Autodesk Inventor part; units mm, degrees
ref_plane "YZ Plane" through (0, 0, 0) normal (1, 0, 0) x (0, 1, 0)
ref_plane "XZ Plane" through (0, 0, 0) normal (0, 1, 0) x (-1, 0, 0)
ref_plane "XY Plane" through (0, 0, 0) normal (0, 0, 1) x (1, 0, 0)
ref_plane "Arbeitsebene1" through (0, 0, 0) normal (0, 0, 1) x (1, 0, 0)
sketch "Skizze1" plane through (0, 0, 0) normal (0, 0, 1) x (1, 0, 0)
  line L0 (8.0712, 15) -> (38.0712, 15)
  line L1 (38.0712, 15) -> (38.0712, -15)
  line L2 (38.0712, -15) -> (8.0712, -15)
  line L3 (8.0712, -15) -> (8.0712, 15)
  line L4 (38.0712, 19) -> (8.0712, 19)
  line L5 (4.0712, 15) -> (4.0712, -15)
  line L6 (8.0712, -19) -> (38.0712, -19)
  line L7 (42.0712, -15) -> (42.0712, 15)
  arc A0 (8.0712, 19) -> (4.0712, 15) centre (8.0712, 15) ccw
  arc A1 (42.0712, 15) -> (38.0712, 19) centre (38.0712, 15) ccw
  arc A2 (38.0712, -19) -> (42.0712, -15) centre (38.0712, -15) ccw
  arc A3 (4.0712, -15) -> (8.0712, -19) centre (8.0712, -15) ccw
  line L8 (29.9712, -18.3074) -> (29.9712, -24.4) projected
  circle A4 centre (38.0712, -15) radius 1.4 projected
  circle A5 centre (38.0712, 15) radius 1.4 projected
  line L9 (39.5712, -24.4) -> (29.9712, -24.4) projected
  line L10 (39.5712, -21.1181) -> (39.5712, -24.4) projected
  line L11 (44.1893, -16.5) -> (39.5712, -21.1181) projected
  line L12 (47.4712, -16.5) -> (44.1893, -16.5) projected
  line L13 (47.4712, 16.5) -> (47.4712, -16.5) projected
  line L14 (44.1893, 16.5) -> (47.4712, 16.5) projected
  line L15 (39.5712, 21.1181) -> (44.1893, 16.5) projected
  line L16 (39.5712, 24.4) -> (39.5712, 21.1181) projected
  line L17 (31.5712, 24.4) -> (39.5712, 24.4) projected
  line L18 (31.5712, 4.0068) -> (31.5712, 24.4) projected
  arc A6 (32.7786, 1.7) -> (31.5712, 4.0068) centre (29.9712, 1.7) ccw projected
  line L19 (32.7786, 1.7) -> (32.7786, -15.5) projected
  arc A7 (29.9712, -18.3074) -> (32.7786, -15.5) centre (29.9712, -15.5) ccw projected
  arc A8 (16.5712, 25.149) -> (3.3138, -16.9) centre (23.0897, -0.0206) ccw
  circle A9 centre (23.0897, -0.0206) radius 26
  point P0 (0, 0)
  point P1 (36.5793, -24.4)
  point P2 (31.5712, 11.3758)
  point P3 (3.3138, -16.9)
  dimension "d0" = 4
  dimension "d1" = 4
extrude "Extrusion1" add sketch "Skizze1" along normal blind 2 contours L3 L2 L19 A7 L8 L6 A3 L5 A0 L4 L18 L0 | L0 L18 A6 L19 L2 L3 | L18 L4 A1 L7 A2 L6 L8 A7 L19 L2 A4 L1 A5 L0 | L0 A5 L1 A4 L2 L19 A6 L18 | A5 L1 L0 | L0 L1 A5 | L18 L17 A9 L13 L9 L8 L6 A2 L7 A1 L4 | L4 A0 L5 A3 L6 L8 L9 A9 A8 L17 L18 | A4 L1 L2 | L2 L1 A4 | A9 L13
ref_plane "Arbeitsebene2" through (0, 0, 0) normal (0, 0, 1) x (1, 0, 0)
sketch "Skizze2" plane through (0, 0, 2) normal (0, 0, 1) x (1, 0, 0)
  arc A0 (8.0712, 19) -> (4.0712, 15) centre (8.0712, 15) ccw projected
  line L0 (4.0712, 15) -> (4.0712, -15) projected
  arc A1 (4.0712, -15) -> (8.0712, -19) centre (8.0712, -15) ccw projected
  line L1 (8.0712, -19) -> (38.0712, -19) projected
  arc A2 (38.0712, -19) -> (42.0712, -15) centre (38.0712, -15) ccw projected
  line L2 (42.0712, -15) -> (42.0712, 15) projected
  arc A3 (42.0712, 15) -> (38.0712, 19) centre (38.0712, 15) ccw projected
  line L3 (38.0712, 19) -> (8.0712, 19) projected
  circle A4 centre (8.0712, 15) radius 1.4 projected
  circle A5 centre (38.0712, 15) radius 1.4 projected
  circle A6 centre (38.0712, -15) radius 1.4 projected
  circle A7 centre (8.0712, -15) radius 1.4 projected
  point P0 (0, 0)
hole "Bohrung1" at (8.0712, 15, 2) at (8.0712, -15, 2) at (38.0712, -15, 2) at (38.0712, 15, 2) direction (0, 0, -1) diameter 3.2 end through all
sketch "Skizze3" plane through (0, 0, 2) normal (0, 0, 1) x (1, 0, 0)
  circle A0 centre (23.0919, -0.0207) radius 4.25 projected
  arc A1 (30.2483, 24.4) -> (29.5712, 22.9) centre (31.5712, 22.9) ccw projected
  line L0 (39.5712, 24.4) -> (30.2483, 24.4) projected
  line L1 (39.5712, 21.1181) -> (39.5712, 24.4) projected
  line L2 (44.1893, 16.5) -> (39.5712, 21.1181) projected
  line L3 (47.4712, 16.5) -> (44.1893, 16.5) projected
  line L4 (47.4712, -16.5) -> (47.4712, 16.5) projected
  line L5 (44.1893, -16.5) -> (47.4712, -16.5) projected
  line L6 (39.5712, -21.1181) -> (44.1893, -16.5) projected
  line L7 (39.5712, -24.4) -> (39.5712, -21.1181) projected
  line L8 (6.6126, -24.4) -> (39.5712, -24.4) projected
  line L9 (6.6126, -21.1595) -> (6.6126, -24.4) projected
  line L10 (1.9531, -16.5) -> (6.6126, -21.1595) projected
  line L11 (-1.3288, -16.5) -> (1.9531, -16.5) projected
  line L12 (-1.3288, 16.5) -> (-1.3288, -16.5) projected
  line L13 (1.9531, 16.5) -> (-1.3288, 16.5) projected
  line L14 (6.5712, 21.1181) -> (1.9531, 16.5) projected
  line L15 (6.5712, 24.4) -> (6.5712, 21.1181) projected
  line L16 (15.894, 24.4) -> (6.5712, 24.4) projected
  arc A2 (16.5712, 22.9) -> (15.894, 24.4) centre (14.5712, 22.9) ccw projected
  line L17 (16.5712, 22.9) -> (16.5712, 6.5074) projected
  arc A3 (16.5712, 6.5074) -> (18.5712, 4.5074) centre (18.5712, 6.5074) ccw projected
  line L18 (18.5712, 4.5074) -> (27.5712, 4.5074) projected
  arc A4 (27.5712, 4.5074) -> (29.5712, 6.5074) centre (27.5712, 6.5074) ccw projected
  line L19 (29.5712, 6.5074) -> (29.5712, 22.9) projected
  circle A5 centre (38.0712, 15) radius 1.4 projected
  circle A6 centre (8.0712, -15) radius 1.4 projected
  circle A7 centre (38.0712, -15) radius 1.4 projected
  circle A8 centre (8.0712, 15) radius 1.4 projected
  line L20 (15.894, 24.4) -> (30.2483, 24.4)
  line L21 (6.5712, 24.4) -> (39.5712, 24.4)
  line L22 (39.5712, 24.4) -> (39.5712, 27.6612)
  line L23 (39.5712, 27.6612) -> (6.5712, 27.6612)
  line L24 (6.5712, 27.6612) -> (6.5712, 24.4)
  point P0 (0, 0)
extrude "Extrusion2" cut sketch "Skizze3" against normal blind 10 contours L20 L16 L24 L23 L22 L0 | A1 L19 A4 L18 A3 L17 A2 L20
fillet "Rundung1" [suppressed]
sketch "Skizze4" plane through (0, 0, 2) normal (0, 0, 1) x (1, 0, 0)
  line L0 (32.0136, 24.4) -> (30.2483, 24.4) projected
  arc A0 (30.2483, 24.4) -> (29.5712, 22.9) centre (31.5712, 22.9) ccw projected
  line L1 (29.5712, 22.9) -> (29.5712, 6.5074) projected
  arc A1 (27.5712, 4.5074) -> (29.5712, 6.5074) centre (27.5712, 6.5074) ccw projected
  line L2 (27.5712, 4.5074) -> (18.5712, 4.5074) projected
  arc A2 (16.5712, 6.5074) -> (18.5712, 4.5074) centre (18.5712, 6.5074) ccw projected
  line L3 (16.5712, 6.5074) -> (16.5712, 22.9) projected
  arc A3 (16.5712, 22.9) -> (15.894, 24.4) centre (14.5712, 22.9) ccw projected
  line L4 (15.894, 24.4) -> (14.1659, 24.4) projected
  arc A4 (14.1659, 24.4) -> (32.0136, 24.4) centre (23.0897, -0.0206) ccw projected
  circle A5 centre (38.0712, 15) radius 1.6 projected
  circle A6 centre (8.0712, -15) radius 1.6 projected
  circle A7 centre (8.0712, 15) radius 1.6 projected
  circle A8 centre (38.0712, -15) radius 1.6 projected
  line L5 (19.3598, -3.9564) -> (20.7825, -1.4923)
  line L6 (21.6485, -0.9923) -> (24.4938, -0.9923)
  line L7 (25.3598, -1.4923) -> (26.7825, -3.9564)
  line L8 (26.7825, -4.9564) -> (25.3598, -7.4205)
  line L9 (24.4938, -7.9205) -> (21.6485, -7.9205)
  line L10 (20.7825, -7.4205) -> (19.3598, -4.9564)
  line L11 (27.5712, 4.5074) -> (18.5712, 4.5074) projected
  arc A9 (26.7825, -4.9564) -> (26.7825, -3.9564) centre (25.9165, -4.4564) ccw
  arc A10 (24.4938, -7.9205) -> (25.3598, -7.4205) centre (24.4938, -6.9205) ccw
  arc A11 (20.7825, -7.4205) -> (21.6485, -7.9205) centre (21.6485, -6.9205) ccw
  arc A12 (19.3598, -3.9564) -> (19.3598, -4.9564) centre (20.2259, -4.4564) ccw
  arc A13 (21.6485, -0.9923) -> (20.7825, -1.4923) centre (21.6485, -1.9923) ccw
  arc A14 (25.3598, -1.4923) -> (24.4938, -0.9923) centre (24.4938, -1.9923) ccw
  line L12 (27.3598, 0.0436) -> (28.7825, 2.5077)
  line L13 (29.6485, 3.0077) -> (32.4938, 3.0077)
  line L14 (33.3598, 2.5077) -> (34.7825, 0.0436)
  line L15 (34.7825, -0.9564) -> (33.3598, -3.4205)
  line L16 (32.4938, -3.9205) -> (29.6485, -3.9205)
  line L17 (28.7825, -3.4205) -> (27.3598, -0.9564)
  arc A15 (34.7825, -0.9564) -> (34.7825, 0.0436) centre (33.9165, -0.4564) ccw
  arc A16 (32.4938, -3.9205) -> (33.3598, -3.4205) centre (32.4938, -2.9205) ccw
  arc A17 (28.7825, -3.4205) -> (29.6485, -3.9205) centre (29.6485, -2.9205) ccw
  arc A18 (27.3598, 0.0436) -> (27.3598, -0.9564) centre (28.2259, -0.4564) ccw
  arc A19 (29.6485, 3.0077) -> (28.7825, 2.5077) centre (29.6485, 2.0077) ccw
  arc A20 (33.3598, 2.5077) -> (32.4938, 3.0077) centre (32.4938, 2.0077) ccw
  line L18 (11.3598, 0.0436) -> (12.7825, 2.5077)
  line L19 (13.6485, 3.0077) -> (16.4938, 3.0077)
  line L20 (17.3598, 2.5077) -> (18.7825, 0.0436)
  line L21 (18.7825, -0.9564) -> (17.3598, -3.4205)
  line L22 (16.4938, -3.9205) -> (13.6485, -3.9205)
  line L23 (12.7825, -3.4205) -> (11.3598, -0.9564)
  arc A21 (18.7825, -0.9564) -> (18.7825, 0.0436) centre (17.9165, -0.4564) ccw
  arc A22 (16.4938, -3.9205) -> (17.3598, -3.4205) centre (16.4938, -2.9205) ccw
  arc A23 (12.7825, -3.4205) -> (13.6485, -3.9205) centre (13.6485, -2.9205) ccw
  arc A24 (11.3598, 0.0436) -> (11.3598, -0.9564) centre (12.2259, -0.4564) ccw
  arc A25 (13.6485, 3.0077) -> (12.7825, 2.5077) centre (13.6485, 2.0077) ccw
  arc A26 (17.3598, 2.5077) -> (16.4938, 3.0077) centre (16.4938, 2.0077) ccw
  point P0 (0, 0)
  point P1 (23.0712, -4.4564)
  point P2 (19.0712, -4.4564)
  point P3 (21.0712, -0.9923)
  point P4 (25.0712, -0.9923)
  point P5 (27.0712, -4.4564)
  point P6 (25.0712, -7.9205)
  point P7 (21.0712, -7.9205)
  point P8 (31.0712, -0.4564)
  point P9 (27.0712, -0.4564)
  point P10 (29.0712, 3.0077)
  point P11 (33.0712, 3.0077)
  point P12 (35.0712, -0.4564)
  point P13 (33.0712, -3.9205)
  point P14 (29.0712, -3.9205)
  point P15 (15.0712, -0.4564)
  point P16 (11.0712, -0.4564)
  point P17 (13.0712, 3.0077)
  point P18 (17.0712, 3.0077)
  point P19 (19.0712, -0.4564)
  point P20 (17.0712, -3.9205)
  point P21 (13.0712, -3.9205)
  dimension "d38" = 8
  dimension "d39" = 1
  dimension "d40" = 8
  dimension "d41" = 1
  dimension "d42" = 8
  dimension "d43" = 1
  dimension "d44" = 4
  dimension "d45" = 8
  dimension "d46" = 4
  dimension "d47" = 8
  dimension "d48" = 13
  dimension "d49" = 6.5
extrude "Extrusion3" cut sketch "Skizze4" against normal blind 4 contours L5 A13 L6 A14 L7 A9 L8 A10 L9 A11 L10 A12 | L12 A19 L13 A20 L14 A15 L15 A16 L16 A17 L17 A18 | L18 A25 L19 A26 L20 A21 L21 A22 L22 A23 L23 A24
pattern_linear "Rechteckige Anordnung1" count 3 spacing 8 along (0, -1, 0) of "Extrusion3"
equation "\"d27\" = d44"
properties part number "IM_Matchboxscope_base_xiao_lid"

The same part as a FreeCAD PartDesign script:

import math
import FreeCAD as App
import Part
import Sketcher

V = App.Vector

doc = App.newDocument("Part")
params = doc.addObject("Spreadsheet::Sheet", "Params")
for row, (alias, value) in enumerate([
    ("sketch1_radius", "26 mm"),
    ("pad1_length", "2 mm"),
    ("sketch2_diameter", "3.2 mm"),
    ("hole_diameter", "3.2 mm"),
    ("sketch3_radius", "2 mm"),
    ("sketch3_width", "9 mm"),
    ("sketch3_width2", "33 mm"),
    ("pocket1_length", "10 mm"),
    ("sketch4_radius", "1 mm"),
    ("pocket2_length", "4 mm"),
    ("linearpattern_pitch", "8 mm"),
], start=1):
    params.set(f"A{row}", alias)
    params.set(f"B{row}", "=" + value)
    params.setAlias(f"B{row}", alias)

body = doc.addObject("PartDesign::Body", "Body")

# Sketch on XY plane
sketch1 = body.newObject("Sketcher::SketchObject", "Sketch")
sketch1.AttachmentSupport = (doc.getObject("XY_Plane"), [""])
sketch1.MapMode = "FlatFace"
sketch1.addGeometry([
    Part.ArcOfCircle(Part.Circle(V(23.0897, -0.0206, 0), V(0, 0, 1), 26), math.radians(-139.518121), math.radians(104.519626)),
    Part.ArcOfCircle(Part.Circle(V(23.0897, -0.0206, 0), V(0, 0, 1), 26), math.radians(104.519626), math.radians(220.481879)),
], False)
sketch1.addConstraint([
    Sketcher.Constraint("Tangent", 0, 1, 1, 2),
    Sketcher.Constraint("Coincident", 1, 1, 0, 2),
    Sketcher.Constraint("Radius", 0, 26.0),
    Sketcher.Constraint("DistanceY", 0, 1, -1, 1, 16.9),
    Sketcher.Constraint("DistanceY", -1, 1, 1, 1, 25.149),
    Sketcher.Constraint("DistanceX", 0, 1, 0, 3, 19.776),
    Sketcher.Constraint("DistanceX", -1, 1, 0, 3, 23.0897),
])
sketch1.setExpression("Constraints[2]", "Params.sketch1_radius")
pad1 = body.newObject("PartDesign::Pad", "Pad")
pad1.Profile = sketch1
pad1.setExpression("Length", "Params.pad1_length")

# Sketch on XY plane
sketch2 = body.newObject("Sketcher::SketchObject", "Sketch001")
sketch2.AttachmentSupport = (doc.getObject("XY_Plane"), [""])
sketch2.MapMode = "FlatFace"
sketch2.AttachmentOffset = App.Placement(V(0, 0, 2), App.Rotation())
sketch2.addGeometry([
    Part.Circle(V(8.0712, 15, 0), V(0, 0, 1), 1.6),
    Part.Circle(V(8.0712, -15, 0), V(0, 0, 1), 1.6),
    Part.Circle(V(38.0712, -15, 0), V(0, 0, 1), 1.6),
    Part.Circle(V(38.0712, 15, 0), V(0, 0, 1), 1.6),
], False)
sketch2.addConstraint([
    Sketcher.Constraint("Equal", 0, 1),
    Sketcher.Constraint("Equal", 1, 2),
    Sketcher.Constraint("Equal", 2, 3),
    Sketcher.Constraint("Symmetric", 0, 3, 1, 3, -1),
    Sketcher.Constraint("Symmetric", 2, 3, 3, 3, -1),
    Sketcher.Constraint("Horizontal", 1, 3, 2, 3),
    Sketcher.Constraint("Diameter", 0, 3.2),
    Sketcher.Constraint("DistanceY", -1, 1, 0, 3, 15.0),
    Sketcher.Constraint("DistanceX", 1, 3, 2, 3, 30.0),
    Sketcher.Constraint("DistanceX", -1, 1, 0, 3, 8.0712),
])
sketch2.setExpression("Constraints[6]", "Params.sketch2_diameter")
doc.recompute()
hole = body.newObject("PartDesign::Hole", "Hole")
hole.Profile = sketch2
hole.ThreadType = "None"
hole.setExpression("Diameter", "Params.hole_diameter")
hole.DepthType = "ThroughAll"

# Sketch on XY plane
sketch3 = body.newObject("Sketcher::SketchObject", "Sketch002")
sketch3.AttachmentSupport = (doc.getObject("XY_Plane"), [""])
sketch3.MapMode = "FlatFace"
sketch3.AttachmentOffset = App.Placement(V(0, 0, 2), App.Rotation())
sketch3.addGeometry([
    Part.LineSegment(V(6.5712, 24.4, 0), V(15.894, 24.4, 0)),  # 0
    Part.ArcOfCircle(Part.Circle(V(14.5712, 22.9, 0), V(0, 0, 1), 2), math.radians(0), math.radians(48.592003)),  # 1
    Part.LineSegment(V(16.5712, 22.9, 0), V(16.5712, 6.5074, 0)),  # 2
    Part.ArcOfCircle(Part.Circle(V(18.5712, 6.5074, 0), V(0, 0, 1), 2), math.radians(180), math.radians(270)),  # 3
    Part.LineSegment(V(18.5712, 4.5074, 0), V(27.5712, 4.5074, 0)),  # 4
    Part.ArcOfCircle(Part.Circle(V(27.5712, 6.5074, 0), V(0, 0, 1), 2), math.radians(-90), math.radians(0)),  # 5
    Part.LineSegment(V(29.5712, 6.5074, 0), V(29.5712, 22.9, 0)),  # 6
    Part.ArcOfCircle(Part.Circle(V(31.5712, 22.9, 0), V(0, 0, 1), 2.000016), math.radians(131.410145), math.radians(180)),  # 7
    Part.LineSegment(V(30.2483, 24.4, 0), V(39.5712, 24.4, 0)),  # 8
    Part.LineSegment(V(39.5712, 24.4, 0), V(39.5712, 27.6612, 0)),  # 9
    Part.LineSegment(V(39.5712, 27.6612, 0), V(6.5712, 27.6612, 0)),  # 10
    Part.LineSegment(V(6.5712, 27.6612, 0), V(6.5712, 24.4, 0)),  # 11
], False)
sketch3.addConstraint([
    Sketcher.Constraint("Coincident", 0, 2, 1, 2),
    Sketcher.Constraint("Tangent", 1, 1, 2, 1),
    Sketcher.Constraint("Tangent", 2, 2, 3, 1),
    Sketcher.Constraint("Tangent", 3, 2, 4, 1),
    Sketcher.Constraint("Tangent", 4, 2, 5, 1),
    Sketcher.Constraint("Tangent", 5, 2, 6, 1),
    Sketcher.Constraint("Tangent", 6, 2, 7, 2),
    Sketcher.Constraint("Coincident", 7, 1, 8, 1),
    Sketcher.Constraint("Coincident", 8, 2, 9, 1),
    Sketcher.Constraint("Coincident", 9, 2, 10, 1),
    Sketcher.Constraint("Coincident", 10, 2, 11, 1),
    Sketcher.Constraint("Coincident", 11, 2, 0, 1),
    Sketcher.Constraint("Horizontal", 0),
    Sketcher.Constraint("Vertical", 2),
    Sketcher.Constraint("Horizontal", 4),
    Sketcher.Constraint("Vertical", 6),
    Sketcher.Constraint("Horizontal", 8),
    Sketcher.Constraint("Vertical", 9),
    Sketcher.Constraint("Horizontal", 10),
    Sketcher.Constraint("Vertical", 11),
    Sketcher.Constraint("Equal", 1, 3),
    Sketcher.Constraint("Equal", 3, 5),
    Sketcher.Constraint("Equal", 5, 7),
    Sketcher.Constraint("Horizontal", 1, 3, 7, 3),
    Sketcher.Constraint("Horizontal", 0, 2, 7, 1),
    Sketcher.Constraint("Equal", 0, 8),
    Sketcher.Constraint("Radius", 1, 2.0),
    Sketcher.Constraint("DistanceX", 4, 1, 4, 2, 9.0),
    Sketcher.Constraint("DistanceX", 10, 2, 10, 1, 33.0),
    Sketcher.Constraint("DistanceY", -1, 1, 1, 3, 22.9),
    Sketcher.Constraint("DistanceY", -1, 1, 0, 2, 24.4),
    Sketcher.Constraint("DistanceY", 2, 2, 2, 1, 16.3926),
    Sketcher.Constraint("DistanceY", 9, 1, 9, 2, 3.2612),
    Sketcher.Constraint("DistanceX", -1, 1, 0, 2, 15.894),
])
sketch3.setExpression("Constraints[26]", "Params.sketch3_radius")
sketch3.setExpression("Constraints[27]", "Params.sketch3_width")
sketch3.setExpression("Constraints[28]", "Params.sketch3_width2")
pocket1 = body.newObject("PartDesign::Pocket", "Pocket")
pocket1.Profile = sketch3
pocket1.setExpression("Length", "Params.pocket1_length")

# Sketch on XY plane
sketch4 = body.newObject("Sketcher::SketchObject", "Sketch003")
sketch4.AttachmentSupport = (doc.getObject("XY_Plane"), [""])
sketch4.MapMode = "FlatFace"
sketch4.AttachmentOffset = App.Placement(V(0, 0, 2), App.Rotation())
sketch4.addGeometry([
    Part.LineSegment(V(20.7825, -1.4923, 0), V(19.3598, -3.9564, 0)),  # 0
    Part.ArcOfCircle(Part.Circle(V(20.2259, -4.4564, 0), V(0, 0, 1), 1.000065), math.radians(150.002137), math.radians(209.997863)),  # 1
    Part.LineSegment(V(19.3598, -4.9564, 0), V(20.7825, -7.4205, 0)),  # 2
    Part.ArcOfCircle(Part.Circle(V(21.6485, -6.9205, 0), V(0, 0, 1), 0.999978), math.radians(-149.999272), math.radians(-90)),  # 3
    Part.LineSegment(V(21.6485, -7.9205, 0), V(24.4938, -7.9205, 0)),  # 4
    Part.ArcOfCircle(Part.Circle(V(24.4938, -6.9205, 0), V(0, 0, 1), 1), math.radians(-90), math.radians(-30.000728)),  # 5
    Part.LineSegment(V(25.3598, -7.4205, 0), V(26.7825, -4.9564, 0)),  # 6
    Part.ArcOfCircle(Part.Circle(V(25.9165, -4.4564, 0), V(0, 0, 1), 0.999978), math.radians(-30.000728), math.radians(30.000728)),  # 7
    Part.LineSegment(V(26.7825, -3.9564, 0), V(25.3598, -1.4923, 0)),  # 8
    Part.ArcOfCircle(Part.Circle(V(24.4938, -1.9923, 0), V(0, 0, 1), 0.999978), math.radians(30.000728), math.radians(90)),  # 9
    Part.LineSegment(V(24.4938, -0.9923, 0), V(21.6485, -0.9923, 0)),  # 10
    Part.ArcOfCircle(Part.Circle(V(21.6485, -1.9923, 0), V(0, 0, 1), 1), math.radians(90), math.radians(149.999272)),  # 11
    Part.LineSegment(V(28.7825, 2.5077, 0), V(27.3598, 0.0436, 0)),  # 12
    Part.ArcOfCircle(Part.Circle(V(28.2259, -0.4564, 0), V(0, 0, 1), 1.000065), math.radians(150.002137), math.radians(209.997863)),  # 13
    Part.LineSegment(V(27.3598, -0.9564, 0), V(28.7825, -3.4205, 0)),  # 14
    Part.ArcOfCircle(Part.Circle(V(29.6485, -2.9205, 0), V(0, 0, 1), 0.999978), math.radians(-149.999272), math.radians(-90)),  # 15
    Part.LineSegment(V(29.6485, -3.9205, 0), V(32.4938, -3.9205, 0)),  # 16
    Part.ArcOfCircle(Part.Circle(V(32.4938, -2.9205, 0), V(0, 0, 1), 1), math.radians(-90), math.radians(-30.000728)),  # 17
    Part.LineSegment(V(33.3598, -3.4205, 0), V(34.7825, -0.9564, 0)),  # 18
    Part.ArcOfCircle(Part.Circle(V(33.9165, -0.4564, 0), V(0, 0, 1), 0.999978), math.radians(-30.000728), math.radians(30.000728)),  # 19
    Part.LineSegment(V(34.7825, 0.0436, 0), V(33.3598, 2.5077, 0)),  # 20
    Part.ArcOfCircle(Part.Circle(V(32.4938, 2.0077, 0), V(0, 0, 1), 0.999978), math.radians(30.000728), math.radians(90)),  # 21
    Part.LineSegment(V(32.4938, 3.0077, 0), V(29.6485, 3.0077, 0)),  # 22
    Part.ArcOfCircle(Part.Circle(V(29.6485, 2.0077, 0), V(0, 0, 1), 1), math.radians(90), math.radians(149.999272)),  # 23
    Part.LineSegment(V(12.7825, 2.5077, 0), V(11.3598, 0.0436, 0)),  # 24
    Part.ArcOfCircle(Part.Circle(V(12.2259, -0.4564, 0), V(0, 0, 1), 1.000065), math.radians(150.002137), math.radians(209.997863)),  # 25
    Part.LineSegment(V(11.3598, -0.9564, 0), V(12.7825, -3.4205, 0)),  # 26
    Part.ArcOfCircle(Part.Circle(V(13.6485, -2.9205, 0), V(0, 0, 1), 0.999978), math.radians(-149.999272), math.radians(-90)),  # 27
    Part.LineSegment(V(13.6485, -3.9205, 0), V(16.4938, -3.9205, 0)),  # 28
    Part.ArcOfCircle(Part.Circle(V(16.4938, -2.9205, 0), V(0, 0, 1), 1), math.radians(-90), math.radians(-30.000728)),  # 29
    Part.LineSegment(V(17.3598, -3.4205, 0), V(18.7825, -0.9564, 0)),  # 30
    Part.ArcOfCircle(Part.Circle(V(17.9165, -0.4564, 0), V(0, 0, 1), 0.999978), math.radians(-30.000728), math.radians(30.000728)),  # 31
    Part.LineSegment(V(18.7825, 0.0436, 0), V(17.3598, 2.5077, 0)),  # 32
    Part.ArcOfCircle(Part.Circle(V(16.4938, 2.0077, 0), V(0, 0, 1), 0.999978), math.radians(30.000728), math.radians(90)),  # 33
    Part.LineSegment(V(16.4938, 3.0077, 0), V(13.6485, 3.0077, 0)),  # 34
    Part.ArcOfCircle(Part.Circle(V(13.6485, 2.0077, 0), V(0, 0, 1), 1), math.radians(90), math.radians(149.999272)),  # 35
], False)
sketch4.addConstraint([
    Sketcher.Constraint("Tangent", 0, 2, 1, 1),
    Sketcher.Constraint("Tangent", 1, 2, 2, 1),
    Sketcher.Constraint("Tangent", 2, 2, 3, 1),
    Sketcher.Constraint("Tangent", 3, 2, 4, 1),
    Sketcher.Constraint("Tangent", 4, 2, 5, 1),
    Sketcher.Constraint("Tangent", 5, 2, 6, 1),
    Sketcher.Constraint("Tangent", 6, 2, 7, 1),
    Sketcher.Constraint("Tangent", 7, 2, 8, 1),
    Sketcher.Constraint("Tangent", 8, 2, 9, 1),
    Sketcher.Constraint("Tangent", 9, 2, 10, 1),
    Sketcher.Constraint("Tangent", 10, 2, 11, 1),
    Sketcher.Constraint("Tangent", 11, 2, 0, 1),
    Sketcher.Constraint("Tangent", 12, 2, 13, 1),
    Sketcher.Constraint("Tangent", 13, 2, 14, 1),
    Sketcher.Constraint("Tangent", 14, 2, 15, 1),
    Sketcher.Constraint("Tangent", 15, 2, 16, 1),
    Sketcher.Constraint("Tangent", 16, 2, 17, 1),
    Sketcher.Constraint("Tangent", 17, 2, 18, 1),
    Sketcher.Constraint("Tangent", 18, 2, 19, 1),
    Sketcher.Constraint("Tangent", 19, 2, 20, 1),
    Sketcher.Constraint("Tangent", 20, 2, 21, 1),
    Sketcher.Constraint("Tangent", 21, 2, 22, 1),
    Sketcher.Constraint("Tangent", 22, 2, 23, 1),
    Sketcher.Constraint("Tangent", 23, 2, 12, 1),
    Sketcher.Constraint("Tangent", 24, 2, 25, 1),
    Sketcher.Constraint("Tangent", 25, 2, 26, 1),
    Sketcher.Constraint("Tangent", 26, 2, 27, 1),
    Sketcher.Constraint("Tangent", 27, 2, 28, 1),
    Sketcher.Constraint("Tangent", 28, 2, 29, 1),
    Sketcher.Constraint("Tangent", 29, 2, 30, 1),
    Sketcher.Constraint("Tangent", 30, 2, 31, 1),
    Sketcher.Constraint("Tangent", 31, 2, 32, 1),
    Sketcher.Constraint("Tangent", 32, 2, 33, 1),
    Sketcher.Constraint("Tangent", 33, 2, 34, 1),
    Sketcher.Constraint("Tangent", 34, 2, 35, 1),
    Sketcher.Constraint("Tangent", 35, 2, 24, 1),
    Sketcher.Constraint("Horizontal", 4),
    Sketcher.Constraint("Horizontal", 10),
    Sketcher.Constraint("Horizontal", 16),
    Sketcher.Constraint("Horizontal", 22),
    Sketcher.Constraint("Horizontal", 28),
    Sketcher.Constraint("Horizontal", 34),
    Sketcher.Constraint("Equal", 1, 3),
    Sketcher.Constraint("Equal", 3, 5),
    Sketcher.Constraint("Equal", 5, 7),
    Sketcher.Constraint("Equal", 7, 9),
    Sketcher.Constraint("Equal", 9, 11),
    Sketcher.Constraint("Equal", 11, 13),
    Sketcher.Constraint("Equal", 13, 15),
    Sketcher.Constraint("Equal", 15, 17),
    Sketcher.Constraint("Equal", 17, 19),
    Sketcher.Constraint("Equal", 19, 21),
    Sketcher.Constraint("Equal", 21, 23),
    Sketcher.Constraint("Equal", 23, 25),
    Sketcher.Constraint("Equal", 25, 27),
    Sketcher.Constraint("Equal", 27, 29),
    Sketcher.Constraint("Equal", 29, 31),
    Sketcher.Constraint("Equal", 31, 33),
    Sketcher.Constraint("Equal", 33, 35),
    Sketcher.Constraint("Parallel", 0, 6),
    Sketcher.Constraint("Parallel", 2, 8),
    Sketcher.Constraint("Parallel", 6, 12),
    Sketcher.Constraint("Parallel", 8, 14),
    Sketcher.Constraint("Parallel", 12, 18),
    Sketcher.Constraint("Parallel", 14, 20),
    Sketcher.Constraint("Parallel", 18, 24),
    Sketcher.Constraint("Parallel", 20, 26),
    Sketcher.Constraint("Parallel", 24, 30),
    Sketcher.Constraint("Parallel", 26, 32),
    Sketcher.Constraint("Horizontal", 1, 3, 7, 3),
    Sketcher.Constraint("Horizontal", 13, 3, 19, 3),
    Sketcher.Constraint("Horizontal", 19, 3, 25, 3),
    Sketcher.Constraint("Horizontal", 17, 3, 27, 3),
    Sketcher.Constraint("Horizontal", 25, 3, 31, 3),
    Sketcher.Constraint("Horizontal", 23, 3, 33, 3),
    Sketcher.Constraint("Horizontal", 2, 2, 5, 2),
    Sketcher.Constraint("Vertical", 5, 3, 9, 3),
    Sketcher.Constraint("Vertical", 17, 3, 21, 3),
    Sketcher.Constraint("Equal", 10, 16),
    Sketcher.Constraint("Equal", 22, 28),
    Sketcher.Constraint("Equal", 8, 12),
    Sketcher.Constraint("Radius", 1, 1.0),
    Sketcher.Constraint("DistanceY", 7, 3, 13, 3, 4.0),
    Sketcher.Constraint("DistanceX", 1, 3, 13, 3, 8.0),
    Sketcher.Constraint("DistanceX", 25, 3, 1, 3, 8.0),
    Sketcher.Constraint("DistanceY", 1, 2, 0, 2, 1.0),
    Sketcher.Constraint("DistanceX", 8, 2, 12, 2, 2.0),
    Sketcher.Constraint("DistanceX", 4, 1, 4, 2, 2.8453),
    Sketcher.Constraint("DistanceX", -1, 1, 1, 3, 20.226),
    Sketcher.Constraint("DistanceY", 1, 3, -1, 1, 4.4564),
])
sketch4.setExpression("Constraints[81]", "Params.sketch4_radius")
pocket2 = body.newObject("PartDesign::Pocket", "Pocket001")
pocket2.Profile = sketch4
pocket2.setExpression("Length", "Params.pocket2_length")
doc.recompute()

linearpattern = body.newObject("PartDesign::LinearPattern", "LinearPattern")
linearpattern.Originals = [pocket2]
linearpattern.Direction = (doc.getObject("Y_Axis"), [""])
linearpattern.Mode = "offset"
linearpattern.setExpression("Offset", "Params.linearpattern_pitch")
linearpattern.Occurrences = 3
linearpattern.Reversed = True
body.Tip = linearpattern

doc.recompute()
